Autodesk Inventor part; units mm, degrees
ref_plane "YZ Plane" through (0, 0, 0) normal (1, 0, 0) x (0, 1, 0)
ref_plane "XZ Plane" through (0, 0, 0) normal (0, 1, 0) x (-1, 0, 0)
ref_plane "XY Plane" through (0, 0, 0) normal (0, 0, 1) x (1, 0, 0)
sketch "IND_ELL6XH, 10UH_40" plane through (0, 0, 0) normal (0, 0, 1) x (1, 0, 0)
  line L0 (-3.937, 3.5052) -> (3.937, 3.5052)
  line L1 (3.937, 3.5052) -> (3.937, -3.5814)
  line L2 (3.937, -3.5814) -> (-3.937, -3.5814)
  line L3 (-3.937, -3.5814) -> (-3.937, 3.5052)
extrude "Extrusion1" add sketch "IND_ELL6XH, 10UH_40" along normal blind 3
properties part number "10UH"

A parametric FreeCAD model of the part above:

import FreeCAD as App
import Part
import Sketcher
Q = App.Units.Quantity

doc = App.newDocument("Part")
body = doc.addObject("PartDesign::Body", "Body")

# Sketch on XY plane
sketch1 = body.newObject("Sketcher::SketchObject", "Sketch")
sketch1.AttachmentSupport = (doc.getObject("XY_Plane"), [""])
sketch1.MapMode = "FlatFace"
sketch1.addGeometry([
    Part.LineSegment(App.Vector(4, 4, 0), App.Vector(-4, 4, 0)),
    Part.LineSegment(App.Vector(-4, 4, 0), App.Vector(-4, -4, 0)),
    Part.LineSegment(App.Vector(-4, -4, 0), App.Vector(4, -4, 0)),
    Part.LineSegment(App.Vector(4, -4, 0), App.Vector(4, 4, 0)),
], False)
sketch1.addConstraint([
    Sketcher.Constraint("Coincident", 0, 2, 1, 1),
    Sketcher.Constraint("Coincident", 1, 2, 2, 1),
    Sketcher.Constraint("Coincident", 2, 2, 3, 1),
    Sketcher.Constraint("Coincident", 3, 2, 0, 1),
    Sketcher.Constraint("Horizontal", 0),
    Sketcher.Constraint("Vertical", 1),
    Sketcher.Constraint("Horizontal", 2),
    Sketcher.Constraint("Vertical", 3),
    Sketcher.Constraint("DistanceX", 0, 2, 0, 1, Q("0.31 in")),
    Sketcher.Constraint("DistanceY", 1, 2, 1, 1, Q("0.279 in")),
    Sketcher.Constraint("DistanceX", 0, 2, -1, 1, Q("0.155 in")),
    Sketcher.Constraint("DistanceY", -1, 1, 0, 2, Q("0.138 in")),
])
pad1 = body.newObject("PartDesign::Pad", "Pad")
pad1.Profile = sketch1
pad1.Length = Q("0.1181102 in")

doc.recompute()
